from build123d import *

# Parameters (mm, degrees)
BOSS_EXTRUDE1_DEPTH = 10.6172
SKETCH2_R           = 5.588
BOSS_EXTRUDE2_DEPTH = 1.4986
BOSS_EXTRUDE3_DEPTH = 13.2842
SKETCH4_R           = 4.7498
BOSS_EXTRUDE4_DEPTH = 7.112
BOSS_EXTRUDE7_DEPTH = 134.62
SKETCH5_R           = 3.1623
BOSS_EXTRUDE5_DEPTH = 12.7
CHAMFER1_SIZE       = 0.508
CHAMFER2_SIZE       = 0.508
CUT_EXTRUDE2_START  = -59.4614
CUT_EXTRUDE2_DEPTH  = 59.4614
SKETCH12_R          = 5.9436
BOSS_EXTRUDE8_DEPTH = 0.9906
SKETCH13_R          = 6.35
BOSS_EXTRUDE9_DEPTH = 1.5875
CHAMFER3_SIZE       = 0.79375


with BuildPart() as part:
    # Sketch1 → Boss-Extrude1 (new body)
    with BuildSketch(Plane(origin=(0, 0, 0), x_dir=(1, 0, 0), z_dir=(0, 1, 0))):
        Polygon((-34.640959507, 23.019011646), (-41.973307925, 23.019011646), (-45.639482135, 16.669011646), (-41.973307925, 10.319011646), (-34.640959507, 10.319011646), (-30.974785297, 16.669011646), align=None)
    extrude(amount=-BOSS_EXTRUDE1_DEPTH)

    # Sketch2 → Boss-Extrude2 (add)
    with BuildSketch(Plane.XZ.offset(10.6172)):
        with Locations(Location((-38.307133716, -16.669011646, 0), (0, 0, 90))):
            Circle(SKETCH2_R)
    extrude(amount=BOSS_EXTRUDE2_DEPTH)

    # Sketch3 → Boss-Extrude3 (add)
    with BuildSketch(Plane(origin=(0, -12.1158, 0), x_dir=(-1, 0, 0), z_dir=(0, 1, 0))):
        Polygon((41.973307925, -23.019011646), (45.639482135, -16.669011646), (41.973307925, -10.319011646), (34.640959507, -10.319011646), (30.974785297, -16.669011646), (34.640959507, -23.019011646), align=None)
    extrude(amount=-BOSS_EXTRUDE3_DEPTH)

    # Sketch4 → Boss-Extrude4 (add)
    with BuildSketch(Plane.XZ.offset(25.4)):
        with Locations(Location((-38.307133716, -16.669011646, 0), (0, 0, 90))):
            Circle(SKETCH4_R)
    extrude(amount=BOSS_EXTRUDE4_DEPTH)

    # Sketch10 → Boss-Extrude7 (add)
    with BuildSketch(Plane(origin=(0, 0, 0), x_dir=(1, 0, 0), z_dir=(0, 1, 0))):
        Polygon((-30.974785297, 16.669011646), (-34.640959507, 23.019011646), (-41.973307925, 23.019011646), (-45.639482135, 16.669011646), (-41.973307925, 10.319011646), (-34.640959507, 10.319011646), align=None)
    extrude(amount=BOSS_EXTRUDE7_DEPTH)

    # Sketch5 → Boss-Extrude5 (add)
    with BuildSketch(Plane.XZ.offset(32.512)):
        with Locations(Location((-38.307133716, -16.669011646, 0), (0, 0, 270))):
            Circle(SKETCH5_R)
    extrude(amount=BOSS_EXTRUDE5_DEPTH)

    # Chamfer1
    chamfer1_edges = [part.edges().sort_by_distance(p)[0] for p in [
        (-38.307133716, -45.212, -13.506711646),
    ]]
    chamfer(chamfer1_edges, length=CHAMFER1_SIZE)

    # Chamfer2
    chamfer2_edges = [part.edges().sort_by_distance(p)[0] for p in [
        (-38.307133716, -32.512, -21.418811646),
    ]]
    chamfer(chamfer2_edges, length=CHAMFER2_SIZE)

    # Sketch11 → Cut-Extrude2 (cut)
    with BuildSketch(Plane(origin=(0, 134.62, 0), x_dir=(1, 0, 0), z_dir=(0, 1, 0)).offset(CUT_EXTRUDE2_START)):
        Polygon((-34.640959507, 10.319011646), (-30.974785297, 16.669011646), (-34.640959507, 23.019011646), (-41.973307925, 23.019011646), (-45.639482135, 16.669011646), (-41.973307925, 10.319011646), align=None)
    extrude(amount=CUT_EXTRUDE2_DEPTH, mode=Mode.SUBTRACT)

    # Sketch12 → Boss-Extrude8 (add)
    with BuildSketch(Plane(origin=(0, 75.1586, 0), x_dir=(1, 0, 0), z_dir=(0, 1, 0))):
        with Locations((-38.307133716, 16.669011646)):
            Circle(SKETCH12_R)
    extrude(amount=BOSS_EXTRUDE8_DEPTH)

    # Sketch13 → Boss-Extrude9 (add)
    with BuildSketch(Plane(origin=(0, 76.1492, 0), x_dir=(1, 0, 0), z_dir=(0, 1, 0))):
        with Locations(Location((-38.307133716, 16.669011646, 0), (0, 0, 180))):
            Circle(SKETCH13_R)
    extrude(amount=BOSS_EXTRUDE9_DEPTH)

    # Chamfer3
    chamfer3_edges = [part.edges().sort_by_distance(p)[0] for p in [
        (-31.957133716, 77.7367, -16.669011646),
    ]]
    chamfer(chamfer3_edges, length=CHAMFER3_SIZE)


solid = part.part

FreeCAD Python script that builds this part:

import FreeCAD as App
import Part
import Sketcher

V = App.Vector
Q = App.Units.Quantity


def edges_at(feature, points):
    """Names of the edges that pass closest to the given points."""
    edges = feature.Shape.Edges
    near = lambda p: min(range(len(edges)), key=lambda i: edges[i].distToShape(Part.Vertex(*p))[0])
    return sorted({f"Edge{near(p) + 1}" for p in points})

doc = App.newDocument("Part")
params = doc.addObject("Spreadsheet::Sheet", "Params")
for row, (alias, value) in enumerate([
    ("pad1_length", "0.418 in"),
    ("sketch2_diameter", "0.44 in"),
    ("pad2_length", "0.059 in"),
    ("pad3_length", "0.523 in"),
    ("sketch4_diameter", "0.374 in"),
    ("pad4_length", "0.28 in"),
    ("pad5_length", "5.3 in"),
    ("sketch6_diameter", "0.249 in"),
    ("pad6_length", "0.5 in"),
    ("chamfer_size", "0.02 in"),
    ("chamfer2_size", "0.02 in"),
    ("pocket1_length", "2.341 in"),
    ("sketch8_diameter", "0.468 in"),
    ("pad7_length", "0.039 in"),
    ("sketch9_diameter", "0.5 in"),
    ("pad8_length", "0.0625 in"),
    ("chamfer3_size", "0.03125 in"),
], start=1):
    params.set(f"A{row}", alias)
    params.set(f"B{row}", "=" + value)
    params.setAlias(f"B{row}", alias)

body = doc.addObject("PartDesign::Body", "Body")

sketch1 = body.newObject("Sketcher::SketchObject", "Sketch")
sketch1.AttachmentSupport = (doc.getObject("XZ_Plane"), [""])
sketch1.MapMode = "FlatFace"
sketch1.addGeometry(Part.LineSegment(V(-35, -23, 0), V(-42, -23, 0)), False)
sketch1.addGeometry(Part.LineSegment(V(-42, -23, 0), V(-46, -17, 0)), False)
sketch1.addGeometry(Part.LineSegment(V(-46, -17, 0), V(-42, -10, 0)), False)
sketch1.addGeometry(Part.LineSegment(V(-42, -10, 0), V(-35, -10, 0)), False)
sketch1.addGeometry(Part.LineSegment(V(-35, -10, 0), V(-31, -17, 0)), False)
sketch1.addGeometry(Part.LineSegment(V(-31, -17, 0), V(-35, -23, 0)), False)
sketch1.addConstraint(Sketcher.Constraint("Coincident", 0, 2, 1, 1))
sketch1.addConstraint(Sketcher.Constraint("Coincident", 1, 2, 2, 1))
sketch1.addConstraint(Sketcher.Constraint("Coincident", 2, 2, 3, 1))
sketch1.addConstraint(Sketcher.Constraint("Coincident", 3, 2, 4, 1))
sketch1.addConstraint(Sketcher.Constraint("Coincident", 4, 2, 5, 1))
sketch1.addConstraint(Sketcher.Constraint("Coincident", 5, 2, 0, 1))
sketch1.addConstraint(Sketcher.Constraint("Horizontal", 0))
sketch1.addConstraint(Sketcher.Constraint("Horizontal", 3))
sketch1.addConstraint(Sketcher.Constraint("Parallel", 1, 4))
sketch1.addConstraint(Sketcher.Constraint("Parallel", 2, 5))
sketch1.addConstraint(Sketcher.Constraint("Horizontal", 1, 2, 4, 2))
sketch1.addConstraint(Sketcher.Constraint("Vertical", 0, 2, 2, 2))
sketch1.addConstraint(Sketcher.Constraint("Vertical", 3, 2, 5, 2))
sketch1.addConstraint(Sketcher.Constraint("Angle", 1, Q("120 deg")))
sketch1.addConstraint(Sketcher.Constraint("DistanceY", 0, 2, 2, 2, Q("0.5 in")))
sketch1.addConstraint(Sketcher.Constraint("DistanceX", 0, 2, 0, 1, Q("7.332348 mm")))
sketch1.addConstraint(Sketcher.Constraint("DistanceY", 0, 2, -1, 1, Q("23.019012 mm")))
sketch1.addConstraint(Sketcher.Constraint("DistanceX", 3, 2, -1, 1, Q("34.64096 mm")))
pad1 = body.newObject("PartDesign::Pad", "Pad")
pad1.Profile = sketch1
pad1.setExpression("Length", "Params.pad1_length")

sketch2 = body.newObject("Sketcher::SketchObject", "Sketch001")
sketch2.AttachmentSupport = (doc.getObject("XZ_Plane"), [""])
sketch2.MapMode = "FlatFace"
sketch2.AttachmentOffset = App.Placement(V(0, 0, 0.418 * 25.4), App.Rotation())
sketch2.addGeometry(Part.Circle(V(-38, -17, 0), V(0, 0, 1), 6), False)
sketch2.addConstraint(Sketcher.Constraint("Diameter", 0, Q("0.44 in")))
sketch2.addConstraint(Sketcher.Constraint("DistanceY", 0, 3, -1, 1, Q("16.669012 mm")))
sketch2.addConstraint(Sketcher.Constraint("DistanceX", 0, 3, -1, 1, Q("38.307134 mm")))
sketch2.setExpression("Constraints[0]", "Params.sketch2_diameter")
pad2 = body.newObject("PartDesign::Pad", "Pad001")
pad2.Profile = sketch2
pad2.setExpression("Length", "Params.pad2_length")

sketch3 = body.newObject("Sketcher::SketchObject", "Sketch002")
sketch3.AttachmentSupport = (doc.getObject("XZ_Plane"), [""])
sketch3.MapMode = "FlatFace"
sketch3.AttachmentOffset = App.Placement(V(0, 0, 0.477 * 25.4), App.Rotation())
sketch3.addGeometry(Part.LineSegment(V(-42, -23, 0), V(-46, -17, 0)), False)
sketch3.addGeometry(Part.LineSegment(V(-46, -17, 0), V(-42, -10, 0)), False)
sketch3.addGeometry(Part.LineSegment(V(-42, -10, 0), V(-35, -10, 0)), False)
sketch3.addGeometry(Part.LineSegment(V(-35, -10, 0), V(-31, -17, 0)), False)
sketch3.addGeometry(Part.LineSegment(V(-31, -17, 0), V(-35, -23, 0)), False)
sketch3.addGeometry(Part.LineSegment(V(-35, -23, 0), V(-42, -23, 0)), False)
sketch3.addConstraint(Sketcher.Constraint("Coincident", 0, 2, 1, 1))
sketch3.addConstraint(Sketcher.Constraint("Coincident", 1, 2, 2, 1))
sketch3.addConstraint(Sketcher.Constraint("Coincident", 2, 2, 3, 1))
sketch3.addConstraint(Sketcher.Constraint("Coincident", 3, 2, 4, 1))
sketch3.addConstraint(Sketcher.Constraint("Coincident", 4, 2, 5, 1))
sketch3.addConstraint(Sketcher.Constraint("Coincident", 5, 2, 0, 1))
sketch3.addConstraint(Sketcher.Constraint("Horizontal", 2))
sketch3.addConstraint(Sketcher.Constraint("Horizontal", 5))
sketch3.addConstraint(Sketcher.Constraint("Parallel", 0, 3))
sketch3.addConstraint(Sketcher.Constraint("Parallel", 1, 4))
sketch3.addConstraint(Sketcher.Constraint("Horizontal", 0, 2, 3, 2))
sketch3.addConstraint(Sketcher.Constraint("Vertical", 2, 2, 4, 2))
sketch3.addConstraint(Sketcher.Constraint("Vertical", 1, 2, 5, 2))
sketch3.addConstraint(Sketcher.Constraint("Angle", 0, Q("120 deg")))
sketch3.addConstraint(Sketcher.Constraint("DistanceY", 4, 2, 2, 2, Q("0.5 in")))
sketch3.addConstraint(Sketcher.Constraint("DistanceX", 2, 1, 2, 2, Q("7.332348 mm")))
sketch3.addConstraint(Sketcher.Constraint("DistanceY", 0, 2, -1, 1, Q("16.669012 mm")))
sketch3.addConstraint(Sketcher.Constraint("DistanceX", 2, 2, -1, 1, Q("34.64096 mm")))
pad3 = body.newObject("PartDesign::Pad", "Pad002")
pad3.Profile = sketch3
pad3.setExpression("Length", "Params.pad3_length")

sketch4 = body.newObject("Sketcher::SketchObject", "Sketch003")
sketch4.AttachmentSupport = (doc.getObject("XZ_Plane"), [""])
sketch4.MapMode = "FlatFace"
sketch4.AttachmentOffset = App.Placement(V(0, 0, 1 * 25.4), App.Rotation())
sketch4.addGeometry(Part.Circle(V(-38.3, -16.7, 0), V(0, 0, 1), 4.7), False)
sketch4.addConstraint(Sketcher.Constraint("Diameter", 0, Q("0.374 in")))
sketch4.addConstraint(Sketcher.Constraint("DistanceY", 0, 3, -1, 1, Q("16.669012 mm")))
sketch4.addConstraint(Sketcher.Constraint("DistanceX", 0, 3, -1, 1, Q("38.307134 mm")))
sketch4.setExpression("Constraints[0]", "Params.sketch4_diameter")
pad4 = body.newObject("PartDesign::Pad", "Pad003")
pad4.Profile = sketch4
pad4.setExpression("Length", "Params.pad4_length")

sketch5 = body.newObject("Sketcher::SketchObject", "Sketch004")
sketch5.AttachmentSupport = (doc.getObject("XZ_Plane"), [""])
sketch5.MapMode = "FlatFace"
sketch5.addGeometry(Part.LineSegment(V(-31, -17, 0), V(-35, -23, 0)), False)
sketch5.addGeometry(Part.LineSegment(V(-35, -23, 0), V(-42, -23, 0)), False)
sketch5.addGeometry(Part.LineSegment(V(-42, -23, 0), V(-46, -17, 0)), False)
sketch5.addGeometry(Part.LineSegment(V(-46, -17, 0), V(-42, -10, 0)), False)
sketch5.addGeometry(Part.LineSegment(V(-42, -10, 0), V(-35, -10, 0)), False)
sketch5.addGeometry(Part.LineSegment(V(-35, -10, 0), V(-31, -17, 0)), False)
sketch5.addConstraint(Sketcher.Constraint("Coincident", 0, 2, 1, 1))
sketch5.addConstraint(Sketcher.Constraint("Coincident", 1, 2, 2, 1))
sketch5.addConstraint(Sketcher.Constraint("Coincident", 2, 2, 3, 1))
sketch5.addConstraint(Sketcher.Constraint("Coincident", 3, 2, 4, 1))
sketch5.addConstraint(Sketcher.Constraint("Coincident", 4, 2, 5, 1))
sketch5.addConstraint(Sketcher.Constraint("Coincident", 5, 2, 0, 1))
sketch5.addConstraint(Sketcher.Constraint("Horizontal", 1))
sketch5.addConstraint(Sketcher.Constraint("Horizontal", 4))
sketch5.addConstraint(Sketcher.Constraint("Parallel", 0, 3))
sketch5.addConstraint(Sketcher.Constraint("Parallel", 2, 5))
sketch5.addConstraint(Sketcher.Constraint("Horizontal", 2, 2, 5, 2))
sketch5.addConstraint(Sketcher.Constraint("Vertical", 1, 2, 3, 2))
sketch5.addConstraint(Sketcher.Constraint("Vertical", 0, 2, 4, 2))
sketch5.addConstraint(Sketcher.Constraint("Angle", 0, Q("-120 deg")))
sketch5.addConstraint(Sketcher.Constraint("DistanceY", 1, 2, 3, 2, Q("0.5 in")))
sketch5.addConstraint(Sketcher.Constraint("DistanceX", 1, 2, 1, 1, Q("7.332348 mm")))
sketch5.addConstraint(Sketcher.Constraint("DistanceX", 0, 2, -1, 1, Q("34.64096 mm")))
sketch5.addConstraint(Sketcher.Constraint("DistanceY", 0, 2, -1, 1, Q("23.019012 mm")))
pad5 = body.newObject("PartDesign::Pad", "Pad004")
pad5.Profile = sketch5
pad5.setExpression("Length", "Params.pad5_length")
pad5.Reversed = True

sketch6 = body.newObject("Sketcher::SketchObject", "Sketch005")
sketch6.AttachmentSupport = (doc.getObject("XZ_Plane"), [""])
sketch6.MapMode = "FlatFace"
sketch6.AttachmentOffset = App.Placement(V(0, 0, 1.28 * 25.4), App.Rotation())
sketch6.addGeometry(Part.Circle(V(-38.3, -16.7, 0), V(0, 0, 1), 3.2), False)
sketch6.addConstraint(Sketcher.Constraint("Diameter", 0, Q("0.249 in")))
sketch6.addConstraint(Sketcher.Constraint("DistanceY", 0, 3, -1, 1, Q("16.669012 mm")))
sketch6.addConstraint(Sketcher.Constraint("DistanceX", 0, 3, -1, 1, Q("38.307134 mm")))
sketch6.setExpression("Constraints[0]", "Params.sketch6_diameter")
pad6 = body.newObject("PartDesign::Pad", "Pad005")
pad6.Profile = sketch6
pad6.setExpression("Length", "Params.pad6_length")
doc.recompute()

chamfer = body.newObject("PartDesign::Chamfer", "Chamfer")
chamfer.Base = (pad6, edges_at(pad6, [(-38.307, -45.212, -13.507)]))
chamfer.setExpression("Size", "Params.chamfer_size")
doc.recompute()

chamfer2 = body.newObject("PartDesign::Chamfer", "Chamfer001")
chamfer2.Base = (chamfer, edges_at(chamfer, [(-38.307, -32.512, -21.419)]))
chamfer2.setExpression("Size", "Params.chamfer2_size")

sketch7 = body.newObject("Sketcher::SketchObject", "Sketch006")
sketch7.AttachmentSupport = (doc.getObject("XZ_Plane"), [""])
sketch7.MapMode = "FlatFace"
sketch7.AttachmentOffset = App.Placement(V(0, 0, -2.959 * 25.4), App.Rotation())
sketch7.addGeometry(Part.LineSegment(V(-35, -10, 0), V(-31, -17, 0)), False)
sketch7.addGeometry(Part.LineSegment(V(-31, -17, 0), V(-35, -23, 0)), False)
sketch7.addGeometry(Part.LineSegment(V(-35, -23, 0), V(-42, -23, 0)), False)
sketch7.addGeometry(Part.LineSegment(V(-42, -23, 0), V(-46, -17, 0)), False)
sketch7.addGeometry(Part.LineSegment(V(-46, -17, 0), V(-42, -10, 0)), False)
sketch7.addGeometry(Part.LineSegment(V(-42, -10, 0), V(-35, -10, 0)), False)
sketch7.addConstraint(Sketcher.Constraint("Coincident", 0, 2, 1, 1))
sketch7.addConstraint(Sketcher.Constraint("Coincident", 1, 2, 2, 1))
sketch7.addConstraint(Sketcher.Constraint("Coincident", 2, 2, 3, 1))
sketch7.addConstraint(Sketcher.Constraint("Coincident", 3, 2, 4, 1))
sketch7.addConstraint(Sketcher.Constraint("Coincident", 4, 2, 5, 1))
sketch7.addConstraint(Sketcher.Constraint("Coincident", 5, 2, 0, 1))
sketch7.addConstraint(Sketcher.Constraint("Horizontal", 2))
sketch7.addConstraint(Sketcher.Constraint("Horizontal", 5))
sketch7.addConstraint(Sketcher.Constraint("Parallel", 0, 3))
sketch7.addConstraint(Sketcher.Constraint("Parallel", 1, 4))
sketch7.addConstraint(Sketcher.Constraint("Horizontal", 0, 2, 3, 2))
sketch7.addConstraint(Sketcher.Constraint("Vertical", 2, 2, 4, 2))
sketch7.addConstraint(Sketcher.Constraint("Vertical", 1, 2, 5, 2))
sketch7.addConstraint(Sketcher.Constraint("Angle", 0, Q("-60 deg")))
sketch7.addConstraint(Sketcher.Constraint("DistanceY", 2, 2, 4, 2, Q("0.5 in")))
sketch7.addConstraint(Sketcher.Constraint("DistanceX", 2, 2, 2, 1, Q("7.332348 mm")))
sketch7.addConstraint(Sketcher.Constraint("DistanceY", 0, 2, -1, 1, Q("16.669012 mm")))
sketch7.addConstraint(Sketcher.Constraint("DistanceX", 1, 2, -1, 1, Q("34.64096 mm")))
pocket1 = body.newObject("PartDesign::Pocket", "Pocket")
pocket1.Profile = sketch7
pocket1.setExpression("Length", "Params.pocket1_length")

sketch8 = body.newObject("Sketcher::SketchObject", "Sketch007")
sketch8.AttachmentSupport = (doc.getObject("XZ_Plane"), [""])
sketch8.MapMode = "FlatFace"
sketch8.AttachmentOffset = App.Placement(V(0, 0, -2.959 * 25.4), App.Rotation())
sketch8.addGeometry(Part.Circle(V(-38, -17, 0), V(0, 0, 1), 6), False)
sketch8.addConstraint(Sketcher.Constraint("Diameter", 0, Q("0.468 in")))
sketch8.addConstraint(Sketcher.Constraint("DistanceY", 0, 3, -1, 1, Q("16.669012 mm")))
sketch8.addConstraint(Sketcher.Constraint("DistanceX", 0, 3, -1, 1, Q("38.307134 mm")))
sketch8.setExpression("Constraints[0]", "Params.sketch8_diameter")
pad7 = body.newObject("PartDesign::Pad", "Pad006")
pad7.Profile = sketch8
pad7.setExpression("Length", "Params.pad7_length")
pad7.Reversed = True

sketch9 = body.newObject("Sketcher::SketchObject", "Sketch008")
sketch9.AttachmentSupport = (doc.getObject("XZ_Plane"), [""])
sketch9.MapMode = "FlatFace"
sketch9.AttachmentOffset = App.Placement(V(0, 0, -2.998 * 25.4), App.Rotation())
sketch9.addGeometry(Part.Circle(V(-38, -17, 0), V(0, 0, 1), 6), False)
sketch9.addConstraint(Sketcher.Constraint("Diameter", 0, Q("0.5 in")))
sketch9.addConstraint(Sketcher.Constraint("DistanceY", 0, 3, -1, 1, Q("16.669012 mm")))
sketch9.addConstraint(Sketcher.Constraint("DistanceX", 0, 3, -1, 1, Q("38.307134 mm")))
sketch9.setExpression("Constraints[0]", "Params.sketch9_diameter")
pad8 = body.newObject("PartDesign::Pad", "Pad007")
pad8.Profile = sketch9
pad8.setExpression("Length", "Params.pad8_length")
pad8.Reversed = True
doc.recompute()

chamfer3 = body.newObject("PartDesign::Chamfer", "Chamfer002")
chamfer3.Base = (pad8, edges_at(pad8, [(-31.957, 77.737, -16.669)]))
chamfer3.setExpression("Size", "Params.chamfer3_size")

doc.recompute()
